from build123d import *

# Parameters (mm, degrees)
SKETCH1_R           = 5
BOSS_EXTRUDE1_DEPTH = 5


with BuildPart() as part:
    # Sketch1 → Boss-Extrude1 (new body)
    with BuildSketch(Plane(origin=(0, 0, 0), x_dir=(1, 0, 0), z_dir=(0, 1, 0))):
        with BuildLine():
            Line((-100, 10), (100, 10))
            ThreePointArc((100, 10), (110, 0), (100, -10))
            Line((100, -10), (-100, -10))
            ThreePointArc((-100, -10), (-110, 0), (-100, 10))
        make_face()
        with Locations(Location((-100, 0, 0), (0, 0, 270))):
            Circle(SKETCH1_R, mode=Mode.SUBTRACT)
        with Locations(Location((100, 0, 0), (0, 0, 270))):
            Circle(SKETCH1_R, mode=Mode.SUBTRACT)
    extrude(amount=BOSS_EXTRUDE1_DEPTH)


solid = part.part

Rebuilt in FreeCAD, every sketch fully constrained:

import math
import FreeCAD as App
import Part
import Sketcher
Q = App.Units.Quantity

doc = App.newDocument("Part")
body = doc.addObject("PartDesign::Body", "Body")

# Sketch on XZ plane
sketch1 = body.newObject("Sketcher::SketchObject", "Sketch")
sketch1.AttachmentSupport = (doc.getObject("XZ_Plane"), [""])
sketch1.MapMode = "FlatFace"
sketch1.addGeometry([
    Part.LineSegment(App.Vector(100, -10, 0), App.Vector(-100, -10, 0)),  # 0
    Part.ArcOfCircle(Part.Circle(App.Vector(-100, 0, 0), App.Vector(0, 0, 1), 10), math.radians(90), math.radians(270)),  # 1
    Part.LineSegment(App.Vector(-100, 10, 0), App.Vector(100, 10, 0)),  # 2
    Part.ArcOfCircle(Part.Circle(App.Vector(100, 0, 0), App.Vector(0, 0, 1), 10), math.radians(-90), math.radians(90)),  # 3
    Part.Circle(App.Vector(100, 0, 0), App.Vector(0, 0, 1), 5),  # 4
    Part.Circle(App.Vector(-100, 0, 0), App.Vector(0, 0, 1), 5),  # 5
], False)
sketch1.addConstraint([
    Sketcher.Constraint("Tangent", 0, 2, 1, 2),
    Sketcher.Constraint("Tangent", 1, 1, 2, 1),
    Sketcher.Constraint("Tangent", 2, 2, 3, 2),
    Sketcher.Constraint("Tangent", 3, 1, 0, 1),
    Sketcher.Constraint("Horizontal", 0),
    Sketcher.Constraint("Horizontal", 2),
    Sketcher.Constraint("Coincident", 4, 3, 3, 3),
    Sketcher.Constraint("Coincident", 5, 3, 1, 3),
    Sketcher.Constraint("Equal", 4, 5),
    Sketcher.Constraint("Symmetric", 1, 3, 3, 3, -1, 1),
    Sketcher.Constraint("Diameter", 4, Q("10 mm")),
    Sketcher.Constraint("Radius", 1, Q("10 mm")),
    Sketcher.Constraint("DistanceX", 0, 2, 0, 1, Q("200 mm")),
])
pad1 = body.newObject("PartDesign::Pad", "Pad")
pad1.Profile = sketch1
pad1.Length = 5
pad1.Reversed = True

doc.recompute()
